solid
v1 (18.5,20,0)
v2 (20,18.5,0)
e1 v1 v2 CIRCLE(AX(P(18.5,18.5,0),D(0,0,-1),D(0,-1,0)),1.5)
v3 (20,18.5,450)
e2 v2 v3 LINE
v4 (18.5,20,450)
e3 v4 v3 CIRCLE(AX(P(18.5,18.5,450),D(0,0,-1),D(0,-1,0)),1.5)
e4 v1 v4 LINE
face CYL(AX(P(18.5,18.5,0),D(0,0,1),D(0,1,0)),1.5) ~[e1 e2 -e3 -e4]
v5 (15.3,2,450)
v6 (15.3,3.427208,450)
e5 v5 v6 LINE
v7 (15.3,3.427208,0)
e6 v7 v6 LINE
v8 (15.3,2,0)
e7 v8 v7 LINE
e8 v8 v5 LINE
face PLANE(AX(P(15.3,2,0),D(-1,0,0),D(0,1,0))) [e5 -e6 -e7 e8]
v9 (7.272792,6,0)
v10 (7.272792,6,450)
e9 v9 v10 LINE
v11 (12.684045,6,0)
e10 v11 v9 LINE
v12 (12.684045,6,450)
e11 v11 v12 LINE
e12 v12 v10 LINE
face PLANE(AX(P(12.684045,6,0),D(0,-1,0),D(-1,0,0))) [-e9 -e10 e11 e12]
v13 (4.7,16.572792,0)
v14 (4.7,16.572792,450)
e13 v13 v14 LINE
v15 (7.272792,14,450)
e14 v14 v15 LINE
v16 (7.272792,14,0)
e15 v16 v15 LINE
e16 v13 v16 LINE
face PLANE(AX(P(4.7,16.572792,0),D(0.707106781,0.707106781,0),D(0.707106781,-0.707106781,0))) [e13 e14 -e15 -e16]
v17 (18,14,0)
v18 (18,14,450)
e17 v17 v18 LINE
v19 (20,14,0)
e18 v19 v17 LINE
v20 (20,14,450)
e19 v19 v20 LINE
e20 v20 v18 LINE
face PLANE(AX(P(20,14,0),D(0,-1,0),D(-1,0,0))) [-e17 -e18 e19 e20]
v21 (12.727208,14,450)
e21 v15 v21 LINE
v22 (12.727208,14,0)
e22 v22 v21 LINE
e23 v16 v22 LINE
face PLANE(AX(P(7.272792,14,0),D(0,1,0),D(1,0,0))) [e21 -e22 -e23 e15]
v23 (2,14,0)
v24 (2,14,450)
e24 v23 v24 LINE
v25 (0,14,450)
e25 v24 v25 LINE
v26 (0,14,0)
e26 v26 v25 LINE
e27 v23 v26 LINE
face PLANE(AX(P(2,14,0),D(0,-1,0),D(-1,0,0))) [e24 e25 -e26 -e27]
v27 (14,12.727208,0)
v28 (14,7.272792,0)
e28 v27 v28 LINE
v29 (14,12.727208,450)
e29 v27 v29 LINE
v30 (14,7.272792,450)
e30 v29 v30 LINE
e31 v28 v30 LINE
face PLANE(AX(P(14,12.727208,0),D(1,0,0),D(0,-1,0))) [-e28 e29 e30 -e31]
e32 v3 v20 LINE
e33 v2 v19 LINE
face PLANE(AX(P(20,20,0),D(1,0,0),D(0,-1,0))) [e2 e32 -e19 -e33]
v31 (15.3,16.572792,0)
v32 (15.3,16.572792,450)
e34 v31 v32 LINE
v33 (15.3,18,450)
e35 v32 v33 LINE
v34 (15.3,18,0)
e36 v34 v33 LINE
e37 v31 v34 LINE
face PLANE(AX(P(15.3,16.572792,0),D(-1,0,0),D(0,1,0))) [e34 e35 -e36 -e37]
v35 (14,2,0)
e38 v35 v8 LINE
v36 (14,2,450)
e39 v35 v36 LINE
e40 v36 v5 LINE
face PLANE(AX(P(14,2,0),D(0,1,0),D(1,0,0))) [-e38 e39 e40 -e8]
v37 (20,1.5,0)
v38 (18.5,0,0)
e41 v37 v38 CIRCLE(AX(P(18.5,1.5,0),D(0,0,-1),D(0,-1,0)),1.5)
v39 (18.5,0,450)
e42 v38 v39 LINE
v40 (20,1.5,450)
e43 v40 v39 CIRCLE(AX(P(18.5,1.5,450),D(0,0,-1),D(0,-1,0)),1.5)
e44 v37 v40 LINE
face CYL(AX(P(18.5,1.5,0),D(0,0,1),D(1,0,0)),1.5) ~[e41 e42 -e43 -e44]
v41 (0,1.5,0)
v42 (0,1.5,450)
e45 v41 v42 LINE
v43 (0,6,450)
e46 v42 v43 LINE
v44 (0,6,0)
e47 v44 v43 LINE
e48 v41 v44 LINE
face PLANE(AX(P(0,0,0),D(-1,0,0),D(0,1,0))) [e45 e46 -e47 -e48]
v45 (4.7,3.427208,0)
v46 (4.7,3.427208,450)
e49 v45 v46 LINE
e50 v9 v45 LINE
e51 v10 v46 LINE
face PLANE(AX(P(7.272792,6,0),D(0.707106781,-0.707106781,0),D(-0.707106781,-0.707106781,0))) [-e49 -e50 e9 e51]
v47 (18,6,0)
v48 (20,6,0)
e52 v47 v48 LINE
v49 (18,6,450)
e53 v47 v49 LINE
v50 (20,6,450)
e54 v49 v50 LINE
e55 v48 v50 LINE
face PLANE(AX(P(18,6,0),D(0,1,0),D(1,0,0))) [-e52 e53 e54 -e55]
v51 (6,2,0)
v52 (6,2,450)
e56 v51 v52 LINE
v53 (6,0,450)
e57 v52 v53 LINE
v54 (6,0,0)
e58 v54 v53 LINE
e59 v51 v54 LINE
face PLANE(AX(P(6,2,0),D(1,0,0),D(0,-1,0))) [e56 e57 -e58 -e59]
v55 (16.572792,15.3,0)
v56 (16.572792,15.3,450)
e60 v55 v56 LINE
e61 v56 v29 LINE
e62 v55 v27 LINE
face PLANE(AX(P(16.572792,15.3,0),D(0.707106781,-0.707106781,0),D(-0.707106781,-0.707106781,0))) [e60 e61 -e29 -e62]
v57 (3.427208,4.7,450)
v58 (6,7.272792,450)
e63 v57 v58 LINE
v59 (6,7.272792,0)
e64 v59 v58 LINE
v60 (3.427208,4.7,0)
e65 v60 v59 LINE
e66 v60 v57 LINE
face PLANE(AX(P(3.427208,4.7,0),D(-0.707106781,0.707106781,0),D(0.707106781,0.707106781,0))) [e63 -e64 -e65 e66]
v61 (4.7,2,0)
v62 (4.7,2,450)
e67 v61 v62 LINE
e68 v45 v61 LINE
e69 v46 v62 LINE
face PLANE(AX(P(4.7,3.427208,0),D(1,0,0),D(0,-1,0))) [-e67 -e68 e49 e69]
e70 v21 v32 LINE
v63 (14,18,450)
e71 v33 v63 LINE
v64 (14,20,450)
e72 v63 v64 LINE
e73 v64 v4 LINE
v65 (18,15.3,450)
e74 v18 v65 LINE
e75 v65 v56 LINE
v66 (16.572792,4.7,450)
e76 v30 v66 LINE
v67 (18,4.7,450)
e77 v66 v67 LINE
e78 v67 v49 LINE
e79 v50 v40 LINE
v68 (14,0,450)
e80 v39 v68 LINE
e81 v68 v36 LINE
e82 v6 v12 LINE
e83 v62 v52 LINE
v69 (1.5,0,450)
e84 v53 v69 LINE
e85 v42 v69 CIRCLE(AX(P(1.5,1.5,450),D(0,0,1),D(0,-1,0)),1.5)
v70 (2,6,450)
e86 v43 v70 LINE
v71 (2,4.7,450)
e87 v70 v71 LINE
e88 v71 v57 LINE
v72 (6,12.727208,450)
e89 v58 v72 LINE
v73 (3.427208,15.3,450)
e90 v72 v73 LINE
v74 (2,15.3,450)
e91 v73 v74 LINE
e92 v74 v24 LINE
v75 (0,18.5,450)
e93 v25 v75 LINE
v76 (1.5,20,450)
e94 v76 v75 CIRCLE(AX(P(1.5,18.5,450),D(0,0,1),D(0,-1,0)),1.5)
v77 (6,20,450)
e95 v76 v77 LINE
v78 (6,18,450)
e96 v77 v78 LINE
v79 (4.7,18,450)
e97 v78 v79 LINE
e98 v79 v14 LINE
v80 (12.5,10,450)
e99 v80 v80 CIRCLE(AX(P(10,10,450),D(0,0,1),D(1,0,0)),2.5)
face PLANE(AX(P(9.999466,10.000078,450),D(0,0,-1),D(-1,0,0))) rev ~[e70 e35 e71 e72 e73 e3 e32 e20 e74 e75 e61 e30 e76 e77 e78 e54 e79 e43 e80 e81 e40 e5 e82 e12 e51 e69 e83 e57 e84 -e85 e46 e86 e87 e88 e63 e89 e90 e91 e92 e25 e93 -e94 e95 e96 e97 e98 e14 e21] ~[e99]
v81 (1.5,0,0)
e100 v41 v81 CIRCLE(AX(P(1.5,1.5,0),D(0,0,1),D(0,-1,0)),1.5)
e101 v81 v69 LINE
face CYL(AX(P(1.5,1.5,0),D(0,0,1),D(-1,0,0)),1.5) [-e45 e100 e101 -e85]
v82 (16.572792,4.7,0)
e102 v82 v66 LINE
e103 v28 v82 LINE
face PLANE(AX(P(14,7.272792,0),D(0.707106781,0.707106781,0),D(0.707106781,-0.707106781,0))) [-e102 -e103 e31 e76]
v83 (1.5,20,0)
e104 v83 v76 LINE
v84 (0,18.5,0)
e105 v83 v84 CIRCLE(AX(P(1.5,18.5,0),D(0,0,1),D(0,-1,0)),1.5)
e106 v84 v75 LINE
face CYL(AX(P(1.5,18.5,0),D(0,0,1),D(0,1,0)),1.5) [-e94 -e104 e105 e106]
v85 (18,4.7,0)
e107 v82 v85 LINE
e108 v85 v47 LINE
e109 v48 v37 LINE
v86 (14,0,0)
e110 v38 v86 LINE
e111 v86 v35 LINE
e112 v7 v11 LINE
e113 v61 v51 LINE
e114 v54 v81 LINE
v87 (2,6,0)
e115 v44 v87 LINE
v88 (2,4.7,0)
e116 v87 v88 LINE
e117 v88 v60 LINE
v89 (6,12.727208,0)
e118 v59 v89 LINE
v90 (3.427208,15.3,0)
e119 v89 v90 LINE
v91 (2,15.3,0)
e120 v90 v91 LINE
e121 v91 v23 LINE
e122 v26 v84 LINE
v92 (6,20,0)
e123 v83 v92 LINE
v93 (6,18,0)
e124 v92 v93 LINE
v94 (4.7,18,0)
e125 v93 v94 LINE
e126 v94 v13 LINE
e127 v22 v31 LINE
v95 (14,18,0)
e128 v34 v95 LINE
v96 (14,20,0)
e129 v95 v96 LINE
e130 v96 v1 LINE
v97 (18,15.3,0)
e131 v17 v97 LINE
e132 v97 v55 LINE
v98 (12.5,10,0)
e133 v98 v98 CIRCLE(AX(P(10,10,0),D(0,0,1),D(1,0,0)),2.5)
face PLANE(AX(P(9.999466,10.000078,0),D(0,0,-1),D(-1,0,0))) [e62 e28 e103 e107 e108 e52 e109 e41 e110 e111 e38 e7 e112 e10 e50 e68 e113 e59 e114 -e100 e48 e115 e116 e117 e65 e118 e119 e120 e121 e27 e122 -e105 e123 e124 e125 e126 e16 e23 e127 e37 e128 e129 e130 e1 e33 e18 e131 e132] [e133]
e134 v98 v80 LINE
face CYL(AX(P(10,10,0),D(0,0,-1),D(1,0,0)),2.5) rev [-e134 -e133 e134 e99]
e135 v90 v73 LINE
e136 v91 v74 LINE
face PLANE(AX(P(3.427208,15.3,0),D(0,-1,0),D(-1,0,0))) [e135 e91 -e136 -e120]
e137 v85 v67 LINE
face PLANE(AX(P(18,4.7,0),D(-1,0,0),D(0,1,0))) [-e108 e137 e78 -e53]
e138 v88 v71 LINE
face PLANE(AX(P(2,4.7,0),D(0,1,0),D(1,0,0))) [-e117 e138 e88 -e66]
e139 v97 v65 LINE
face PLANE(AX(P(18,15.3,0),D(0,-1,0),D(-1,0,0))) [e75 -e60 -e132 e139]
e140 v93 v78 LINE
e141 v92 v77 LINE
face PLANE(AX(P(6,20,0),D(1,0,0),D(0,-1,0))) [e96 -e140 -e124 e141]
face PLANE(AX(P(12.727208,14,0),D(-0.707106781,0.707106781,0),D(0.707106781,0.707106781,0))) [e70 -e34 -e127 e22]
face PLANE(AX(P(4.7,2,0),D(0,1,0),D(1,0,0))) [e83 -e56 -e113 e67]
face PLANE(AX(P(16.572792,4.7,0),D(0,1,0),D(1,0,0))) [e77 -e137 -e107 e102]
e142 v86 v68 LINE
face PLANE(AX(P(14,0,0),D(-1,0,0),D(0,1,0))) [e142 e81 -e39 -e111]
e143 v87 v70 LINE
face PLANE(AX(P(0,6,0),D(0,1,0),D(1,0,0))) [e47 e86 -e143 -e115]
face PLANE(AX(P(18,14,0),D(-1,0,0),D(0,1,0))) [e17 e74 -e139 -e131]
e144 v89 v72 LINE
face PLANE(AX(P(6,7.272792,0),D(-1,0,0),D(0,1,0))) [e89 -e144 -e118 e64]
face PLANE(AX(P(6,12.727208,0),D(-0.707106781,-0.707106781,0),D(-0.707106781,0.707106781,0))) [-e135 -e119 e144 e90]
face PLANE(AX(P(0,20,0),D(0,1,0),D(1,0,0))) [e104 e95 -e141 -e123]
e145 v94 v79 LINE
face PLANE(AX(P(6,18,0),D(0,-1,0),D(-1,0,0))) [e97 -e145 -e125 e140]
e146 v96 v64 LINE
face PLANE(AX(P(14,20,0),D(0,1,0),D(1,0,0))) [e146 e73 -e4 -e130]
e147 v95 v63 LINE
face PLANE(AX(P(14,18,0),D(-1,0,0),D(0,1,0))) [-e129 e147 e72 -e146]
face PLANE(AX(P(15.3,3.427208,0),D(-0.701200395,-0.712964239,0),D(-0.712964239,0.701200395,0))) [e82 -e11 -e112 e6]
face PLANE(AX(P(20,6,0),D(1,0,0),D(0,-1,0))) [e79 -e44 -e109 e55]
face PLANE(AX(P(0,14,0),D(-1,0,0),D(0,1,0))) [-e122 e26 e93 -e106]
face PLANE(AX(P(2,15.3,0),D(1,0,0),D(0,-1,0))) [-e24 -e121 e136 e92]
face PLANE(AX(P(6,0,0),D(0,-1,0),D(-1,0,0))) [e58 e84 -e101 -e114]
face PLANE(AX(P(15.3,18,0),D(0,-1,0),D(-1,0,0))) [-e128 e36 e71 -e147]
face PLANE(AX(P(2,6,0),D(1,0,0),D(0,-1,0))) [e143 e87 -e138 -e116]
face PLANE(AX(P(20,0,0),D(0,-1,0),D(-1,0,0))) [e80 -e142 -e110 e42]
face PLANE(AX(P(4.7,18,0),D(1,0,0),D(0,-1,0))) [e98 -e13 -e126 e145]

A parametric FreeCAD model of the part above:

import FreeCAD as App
import Part
import Sketcher

V = App.Vector


def edges_at(feature, points):
    """Names of the edges that pass closest to the given points."""
    edges = feature.Shape.Edges
    near = lambda p: min(range(len(edges)), key=lambda i: edges[i].distToShape(Part.Vertex(*p))[0])
    return sorted({f"Edge{near(p) + 1}" for p in points})

doc = App.newDocument("Part")
params = doc.addObject("Spreadsheet::Sheet", "Params")
for row, (alias, value) in enumerate([
    ("sketch1_diameter", "5 mm"),
    ("sketch1_width", "6 mm"),
    ("sketch1_width2", "2 mm"),
    ("sketch1_width3", "1.3 mm"),
    ("pad1_length", "450 mm"),
    ("fillet_radius", "1.5 mm"),
], start=1):
    params.set(f"A{row}", alias)
    params.set(f"B{row}", "=" + value)
    params.setAlias(f"B{row}", alias)

body = doc.addObject("PartDesign::Body", "Body")

# Sketch on XY plane
sketch1 = body.newObject("Sketcher::SketchObject", "Sketch")
sketch1.AttachmentSupport = (doc.getObject("XY_Plane"), [""])
sketch1.MapMode = "FlatFace"
sketch1.addGeometry([
    Part.LineSegment(V(20, 20, 0), V(14, 20, 0)),  # 0
    Part.LineSegment(V(14, 20, 0), V(14, 18, 0)),  # 1
    Part.LineSegment(V(14, 18, 0), V(15.3, 18, 0)),  # 2
    Part.LineSegment(V(15.3, 18, 0), V(15.3, 16.572792, 0)),  # 3
    Part.LineSegment(V(15.3, 16.572792, 0), V(12.727208, 14, 0)),  # 4
    Part.LineSegment(V(12.727208, 14, 0), V(7.272792, 14, 0)),  # 5
    Part.LineSegment(V(7.272792, 14, 0), V(4.7, 16.572792, 0)),  # 6
    Part.LineSegment(V(4.7, 16.572792, 0), V(4.7, 18, 0)),  # 7
    Part.LineSegment(V(4.7, 18, 0), V(6, 18, 0)),  # 8
    Part.LineSegment(V(6, 18, 0), V(6, 20, 0)),  # 9
    Part.LineSegment(V(6, 20, 0), V(0, 20, 0)),  # 10
    Part.LineSegment(V(0, 20, 0), V(0, 14, 0)),  # 11
    Part.LineSegment(V(0, 14, 0), V(2, 14, 0)),  # 12
    Part.LineSegment(V(2, 14, 0), V(2, 15.3, 0)),  # 13
    Part.LineSegment(V(2, 15.3, 0), V(3.427208, 15.3, 0)),  # 14
    Part.LineSegment(V(3.427208, 15.3, 0), V(6, 12.727208, 0)),  # 15
    Part.LineSegment(V(6, 12.727208, 0), V(6, 7.272792, 0)),  # 16
    Part.LineSegment(V(6, 7.272792, 0), V(3.427208, 4.7, 0)),  # 17
    Part.LineSegment(V(3.427208, 4.7, 0), V(2, 4.7, 0)),  # 18
    Part.LineSegment(V(2, 4.7, 0), V(2, 6, 0)),  # 19
    Part.LineSegment(V(2, 6, 0), V(0, 6, 0)),  # 20
    Part.LineSegment(V(0, 6, 0), V(0, 0, 0)),  # 21
    Part.LineSegment(V(0, 0, 0), V(6, 0, 0)),  # 22
    Part.LineSegment(V(6, 0, 0), V(6, 2, 0)),  # 23
    Part.LineSegment(V(6, 2, 0), V(4.7, 2, 0)),  # 24
    Part.LineSegment(V(4.7, 2, 0), V(4.7, 3.427208, 0)),  # 25
    Part.LineSegment(V(4.7, 3.427208, 0), V(7.272792, 6, 0)),  # 26
    Part.LineSegment(V(7.272792, 6, 0), V(12.684045, 6, 0)),  # 27
    Part.LineSegment(V(12.684045, 6, 0), V(15.3, 3.427208, 0)),  # 28
    Part.LineSegment(V(15.3, 3.427208, 0), V(15.3, 2, 0)),  # 29
    Part.LineSegment(V(15.3, 2, 0), V(14, 2, 0)),  # 30
    Part.LineSegment(V(14, 2, 0), V(14, 0, 0)),  # 31
    Part.LineSegment(V(14, 0, 0), V(20, 0, 0)),  # 32
    Part.LineSegment(V(20, 0, 0), V(20, 6, 0)),  # 33
    Part.LineSegment(V(20, 6, 0), V(18, 6, 0)),  # 34
    Part.LineSegment(V(18, 6, 0), V(18, 4.7, 0)),  # 35
    Part.LineSegment(V(18, 4.7, 0), V(16.572792, 4.7, 0)),  # 36
    Part.LineSegment(V(16.572792, 4.7, 0), V(14, 7.272792, 0)),  # 37
    Part.LineSegment(V(14, 7.272792, 0), V(14, 12.727208, 0)),  # 38
    Part.LineSegment(V(14, 12.727208, 0), V(16.572792, 15.3, 0)),  # 39
    Part.LineSegment(V(16.572792, 15.3, 0), V(18, 15.3, 0)),  # 40
    Part.LineSegment(V(18, 15.3, 0), V(18, 14, 0)),  # 41
    Part.LineSegment(V(18, 14, 0), V(20, 14, 0)),  # 42
    Part.LineSegment(V(20, 14, 0), V(20, 20, 0)),  # 43
    Part.Circle(V(10, 10, 0), V(0, 0, 1), 2.5),  # 44
], False)
sketch1.addConstraint([
    Sketcher.Constraint("Coincident", 0, 2, 1, 1),
    Sketcher.Constraint("Coincident", 1, 2, 2, 1),
    Sketcher.Constraint("Coincident", 2, 2, 3, 1),
    Sketcher.Constraint("Coincident", 3, 2, 4, 1),
    Sketcher.Constraint("Coincident", 4, 2, 5, 1),
    Sketcher.Constraint("Coincident", 5, 2, 6, 1),
    Sketcher.Constraint("Coincident", 6, 2, 7, 1),
    Sketcher.Constraint("Coincident", 7, 2, 8, 1),
    Sketcher.Constraint("Coincident", 8, 2, 9, 1),
    Sketcher.Constraint("Coincident", 9, 2, 10, 1),
    Sketcher.Constraint("Coincident", 10, 2, 11, 1),
    Sketcher.Constraint("Coincident", 11, 2, 12, 1),
    Sketcher.Constraint("Coincident", 12, 2, 13, 1),
    Sketcher.Constraint("Coincident", 13, 2, 14, 1),
    Sketcher.Constraint("Coincident", 14, 2, 15, 1),
    Sketcher.Constraint("Coincident", 15, 2, 16, 1),
    Sketcher.Constraint("Coincident", 16, 2, 17, 1),
    Sketcher.Constraint("Coincident", 17, 2, 18, 1),
    Sketcher.Constraint("Coincident", 18, 2, 19, 1),
    Sketcher.Constraint("Coincident", 19, 2, 20, 1),
    Sketcher.Constraint("Coincident", 20, 2, 21, 1),
    Sketcher.Constraint("Coincident", 21, 2, 22, 1),
    Sketcher.Constraint("Coincident", 22, 2, 23, 1),
    Sketcher.Constraint("Coincident", 23, 2, 24, 1),
    Sketcher.Constraint("Coincident", 24, 2, 25, 1),
    Sketcher.Constraint("Coincident", 25, 2, 26, 1),
    Sketcher.Constraint("Coincident", 26, 2, 27, 1),
    Sketcher.Constraint("Coincident", 27, 2, 28, 1),
    Sketcher.Constraint("Coincident", 28, 2, 29, 1),
    Sketcher.Constraint("Coincident", 29, 2, 30, 1),
    Sketcher.Constraint("Coincident", 30, 2, 31, 1),
    Sketcher.Constraint("Coincident", 31, 2, 32, 1),
    Sketcher.Constraint("Coincident", 32, 2, 33, 1),
    Sketcher.Constraint("Coincident", 33, 2, 34, 1),
    Sketcher.Constraint("Coincident", 34, 2, 35, 1),
    Sketcher.Constraint("Coincident", 35, 2, 36, 1),
    Sketcher.Constraint("Coincident", 36, 2, 37, 1),
    Sketcher.Constraint("Coincident", 37, 2, 38, 1),
    Sketcher.Constraint("Coincident", 38, 2, 39, 1),
    Sketcher.Constraint("Coincident", 39, 2, 40, 1),
    Sketcher.Constraint("Coincident", 40, 2, 41, 1),
    Sketcher.Constraint("Coincident", 41, 2, 42, 1),
    Sketcher.Constraint("Coincident", 42, 2, 43, 1),
    Sketcher.Constraint("Coincident", 43, 2, 0, 1),
    Sketcher.Constraint("Horizontal", 0),
    Sketcher.Constraint("Vertical", 1),
    Sketcher.Constraint("Horizontal", 2),
    Sketcher.Constraint("Vertical", 3),
    Sketcher.Constraint("Horizontal", 5),
    Sketcher.Constraint("Vertical", 7),
    Sketcher.Constraint("Horizontal", 8),
    Sketcher.Constraint("Vertical", 9),
    Sketcher.Constraint("Horizontal", 10),
    Sketcher.Constraint("Vertical", 11),
    Sketcher.Constraint("Horizontal", 12),
    Sketcher.Constraint("Vertical", 13),
    Sketcher.Constraint("Horizontal", 14),
    Sketcher.Constraint("Vertical", 16),
    Sketcher.Constraint("Horizontal", 18),
    Sketcher.Constraint("Vertical", 19),
    Sketcher.Constraint("Horizontal", 20),
    Sketcher.Constraint("Vertical", 21),
    Sketcher.Constraint("Horizontal", 22),
    Sketcher.Constraint("Vertical", 23),
    Sketcher.Constraint("Horizontal", 24),
    Sketcher.Constraint("Vertical", 25),
    Sketcher.Constraint("Horizontal", 27),
    Sketcher.Constraint("Vertical", 29),
    Sketcher.Constraint("Horizontal", 30),
    Sketcher.Constraint("Vertical", 31),
    Sketcher.Constraint("Horizontal", 32),
    Sketcher.Constraint("Vertical", 33),
    Sketcher.Constraint("Horizontal", 34),
    Sketcher.Constraint("Vertical", 35),
    Sketcher.Constraint("Horizontal", 36),
    Sketcher.Constraint("Vertical", 38),
    Sketcher.Constraint("Horizontal", 40),
    Sketcher.Constraint("Vertical", 41),
    Sketcher.Constraint("Horizontal", 42),
    Sketcher.Constraint("Vertical", 43),
    Sketcher.Constraint("Coincident", 21, 2, -1, 1),
    Sketcher.Constraint("PointOnObject", 10, 2, -2),
    Sketcher.Constraint("PointOnObject", 31, 2, -1),
    Sketcher.Constraint("Perpendicular", 4, 6),
    Sketcher.Constraint("Parallel", 6, 15),
    Sketcher.Constraint("Perpendicular", 15, 17),
    Sketcher.Constraint("Parallel", 17, 26),
    Sketcher.Constraint("Perpendicular", 26, 37),
    Sketcher.Constraint("Perpendicular", 37, 39),
    Sketcher.Constraint("Horizontal", 3, 2, 6, 2),
    Sketcher.Constraint("Horizontal", 2, 2, 7, 2),
    Sketcher.Constraint("Horizontal", 0, 2, 9, 2),
    Sketcher.Constraint("Horizontal", 5, 2, 11, 2),
    Sketcher.Constraint("Horizontal", 20, 2, 26, 2),
    Sketcher.Constraint("Horizontal", 25, 2, 28, 2),
    Sketcher.Constraint("Horizontal", 24, 2, 29, 2),
    Sketcher.Constraint("Horizontal", 27, 2, 33, 2),
    Sketcher.Constraint("Horizontal", 18, 2, 35, 2),
    Sketcher.Constraint("Horizontal", 16, 2, 37, 2),
    Sketcher.Constraint("Horizontal", 15, 2, 38, 2),
    Sketcher.Constraint("Horizontal", 14, 2, 39, 2),
    Sketcher.Constraint("Horizontal", 12, 2, 41, 2),
    Sketcher.Constraint("Vertical", 9, 2, 15, 2),
    Sketcher.Constraint("Vertical", 14, 2, 17, 2),
    Sketcher.Constraint("Vertical", 13, 2, 18, 2),
    Sketcher.Constraint("Vertical", 16, 2, 22, 2),
    Sketcher.Constraint("Vertical", 7, 2, 24, 2),
    Sketcher.Constraint("Vertical", 5, 2, 26, 2),
    Sketcher.Constraint("Vertical", 3, 2, 28, 2),
    Sketcher.Constraint("Vertical", 1, 2, 30, 2),
    Sketcher.Constraint("Vertical", 31, 2, 37, 2),
    Sketcher.Constraint("Vertical", 36, 2, 39, 2),
    Sketcher.Constraint("Vertical", 35, 2, 40, 2),
    Sketcher.Constraint("Vertical", 33, 2, 42, 2),
    Sketcher.Constraint("Equal", 2, 8),
    Sketcher.Constraint("Equal", 0, 10),
    Sketcher.Constraint("Equal", 20, 34),
    Sketcher.Constraint("Equal", 42, 1),
    Sketcher.Constraint("Equal", 40, 3),
    Sketcher.Constraint("Equal", 32, 11),
    Sketcher.Constraint("Equal", 30, 13),
    Sketcher.Constraint("Equal", 5, 16),
    Sketcher.Constraint("Equal", 13, 19),
    Sketcher.Constraint("Equal", 11, 21),
    Sketcher.Constraint("Equal", 9, 23),
    Sketcher.Constraint("Diameter", 44, 5.0),
    Sketcher.Constraint("DistanceX", 0, 2, 0, 1, 6.0),
    Sketcher.Constraint("DistanceX", 12, 1, 12, 2, 2.0),
    Sketcher.Constraint("DistanceX", 2, 1, 2, 2, 1.3),
    Sketcher.Constraint("DistanceX", -1, 1, 44, 3, 10.0),
    Sketcher.Constraint("DistanceY", -1, 1, 44, 3, 10.0),
    Sketcher.Constraint("DistanceX", -1, 1, 0, 2, 14.0),
    Sketcher.Constraint("DistanceX", 5, 2, 5, 1, 5.454416),
    Sketcher.Constraint("DistanceX", 27, 1, 27, 2, 5.411253),
])
sketch1.setExpression("Constraints[125]", "Params.sketch1_diameter")
sketch1.setExpression("Constraints[126]", "Params.sketch1_width")
sketch1.setExpression("Constraints[127]", "Params.sketch1_width2")
sketch1.setExpression("Constraints[128]", "Params.sketch1_width3")
pad1 = body.newObject("PartDesign::Pad", "Pad")
pad1.Profile = sketch1
pad1.setExpression("Length", "Params.pad1_length")
doc.recompute()

fillet = body.newObject("PartDesign::Fillet", "Fillet")
fillet.Base = (pad1, edges_at(pad1, [
    (0, 20, 225),
    (20, 20, 225),
    (20, 0, 225),
    (0, 0, 225),
]))
fillet.setExpression("Radius", "Params.fillet_radius")

doc.recompute()
